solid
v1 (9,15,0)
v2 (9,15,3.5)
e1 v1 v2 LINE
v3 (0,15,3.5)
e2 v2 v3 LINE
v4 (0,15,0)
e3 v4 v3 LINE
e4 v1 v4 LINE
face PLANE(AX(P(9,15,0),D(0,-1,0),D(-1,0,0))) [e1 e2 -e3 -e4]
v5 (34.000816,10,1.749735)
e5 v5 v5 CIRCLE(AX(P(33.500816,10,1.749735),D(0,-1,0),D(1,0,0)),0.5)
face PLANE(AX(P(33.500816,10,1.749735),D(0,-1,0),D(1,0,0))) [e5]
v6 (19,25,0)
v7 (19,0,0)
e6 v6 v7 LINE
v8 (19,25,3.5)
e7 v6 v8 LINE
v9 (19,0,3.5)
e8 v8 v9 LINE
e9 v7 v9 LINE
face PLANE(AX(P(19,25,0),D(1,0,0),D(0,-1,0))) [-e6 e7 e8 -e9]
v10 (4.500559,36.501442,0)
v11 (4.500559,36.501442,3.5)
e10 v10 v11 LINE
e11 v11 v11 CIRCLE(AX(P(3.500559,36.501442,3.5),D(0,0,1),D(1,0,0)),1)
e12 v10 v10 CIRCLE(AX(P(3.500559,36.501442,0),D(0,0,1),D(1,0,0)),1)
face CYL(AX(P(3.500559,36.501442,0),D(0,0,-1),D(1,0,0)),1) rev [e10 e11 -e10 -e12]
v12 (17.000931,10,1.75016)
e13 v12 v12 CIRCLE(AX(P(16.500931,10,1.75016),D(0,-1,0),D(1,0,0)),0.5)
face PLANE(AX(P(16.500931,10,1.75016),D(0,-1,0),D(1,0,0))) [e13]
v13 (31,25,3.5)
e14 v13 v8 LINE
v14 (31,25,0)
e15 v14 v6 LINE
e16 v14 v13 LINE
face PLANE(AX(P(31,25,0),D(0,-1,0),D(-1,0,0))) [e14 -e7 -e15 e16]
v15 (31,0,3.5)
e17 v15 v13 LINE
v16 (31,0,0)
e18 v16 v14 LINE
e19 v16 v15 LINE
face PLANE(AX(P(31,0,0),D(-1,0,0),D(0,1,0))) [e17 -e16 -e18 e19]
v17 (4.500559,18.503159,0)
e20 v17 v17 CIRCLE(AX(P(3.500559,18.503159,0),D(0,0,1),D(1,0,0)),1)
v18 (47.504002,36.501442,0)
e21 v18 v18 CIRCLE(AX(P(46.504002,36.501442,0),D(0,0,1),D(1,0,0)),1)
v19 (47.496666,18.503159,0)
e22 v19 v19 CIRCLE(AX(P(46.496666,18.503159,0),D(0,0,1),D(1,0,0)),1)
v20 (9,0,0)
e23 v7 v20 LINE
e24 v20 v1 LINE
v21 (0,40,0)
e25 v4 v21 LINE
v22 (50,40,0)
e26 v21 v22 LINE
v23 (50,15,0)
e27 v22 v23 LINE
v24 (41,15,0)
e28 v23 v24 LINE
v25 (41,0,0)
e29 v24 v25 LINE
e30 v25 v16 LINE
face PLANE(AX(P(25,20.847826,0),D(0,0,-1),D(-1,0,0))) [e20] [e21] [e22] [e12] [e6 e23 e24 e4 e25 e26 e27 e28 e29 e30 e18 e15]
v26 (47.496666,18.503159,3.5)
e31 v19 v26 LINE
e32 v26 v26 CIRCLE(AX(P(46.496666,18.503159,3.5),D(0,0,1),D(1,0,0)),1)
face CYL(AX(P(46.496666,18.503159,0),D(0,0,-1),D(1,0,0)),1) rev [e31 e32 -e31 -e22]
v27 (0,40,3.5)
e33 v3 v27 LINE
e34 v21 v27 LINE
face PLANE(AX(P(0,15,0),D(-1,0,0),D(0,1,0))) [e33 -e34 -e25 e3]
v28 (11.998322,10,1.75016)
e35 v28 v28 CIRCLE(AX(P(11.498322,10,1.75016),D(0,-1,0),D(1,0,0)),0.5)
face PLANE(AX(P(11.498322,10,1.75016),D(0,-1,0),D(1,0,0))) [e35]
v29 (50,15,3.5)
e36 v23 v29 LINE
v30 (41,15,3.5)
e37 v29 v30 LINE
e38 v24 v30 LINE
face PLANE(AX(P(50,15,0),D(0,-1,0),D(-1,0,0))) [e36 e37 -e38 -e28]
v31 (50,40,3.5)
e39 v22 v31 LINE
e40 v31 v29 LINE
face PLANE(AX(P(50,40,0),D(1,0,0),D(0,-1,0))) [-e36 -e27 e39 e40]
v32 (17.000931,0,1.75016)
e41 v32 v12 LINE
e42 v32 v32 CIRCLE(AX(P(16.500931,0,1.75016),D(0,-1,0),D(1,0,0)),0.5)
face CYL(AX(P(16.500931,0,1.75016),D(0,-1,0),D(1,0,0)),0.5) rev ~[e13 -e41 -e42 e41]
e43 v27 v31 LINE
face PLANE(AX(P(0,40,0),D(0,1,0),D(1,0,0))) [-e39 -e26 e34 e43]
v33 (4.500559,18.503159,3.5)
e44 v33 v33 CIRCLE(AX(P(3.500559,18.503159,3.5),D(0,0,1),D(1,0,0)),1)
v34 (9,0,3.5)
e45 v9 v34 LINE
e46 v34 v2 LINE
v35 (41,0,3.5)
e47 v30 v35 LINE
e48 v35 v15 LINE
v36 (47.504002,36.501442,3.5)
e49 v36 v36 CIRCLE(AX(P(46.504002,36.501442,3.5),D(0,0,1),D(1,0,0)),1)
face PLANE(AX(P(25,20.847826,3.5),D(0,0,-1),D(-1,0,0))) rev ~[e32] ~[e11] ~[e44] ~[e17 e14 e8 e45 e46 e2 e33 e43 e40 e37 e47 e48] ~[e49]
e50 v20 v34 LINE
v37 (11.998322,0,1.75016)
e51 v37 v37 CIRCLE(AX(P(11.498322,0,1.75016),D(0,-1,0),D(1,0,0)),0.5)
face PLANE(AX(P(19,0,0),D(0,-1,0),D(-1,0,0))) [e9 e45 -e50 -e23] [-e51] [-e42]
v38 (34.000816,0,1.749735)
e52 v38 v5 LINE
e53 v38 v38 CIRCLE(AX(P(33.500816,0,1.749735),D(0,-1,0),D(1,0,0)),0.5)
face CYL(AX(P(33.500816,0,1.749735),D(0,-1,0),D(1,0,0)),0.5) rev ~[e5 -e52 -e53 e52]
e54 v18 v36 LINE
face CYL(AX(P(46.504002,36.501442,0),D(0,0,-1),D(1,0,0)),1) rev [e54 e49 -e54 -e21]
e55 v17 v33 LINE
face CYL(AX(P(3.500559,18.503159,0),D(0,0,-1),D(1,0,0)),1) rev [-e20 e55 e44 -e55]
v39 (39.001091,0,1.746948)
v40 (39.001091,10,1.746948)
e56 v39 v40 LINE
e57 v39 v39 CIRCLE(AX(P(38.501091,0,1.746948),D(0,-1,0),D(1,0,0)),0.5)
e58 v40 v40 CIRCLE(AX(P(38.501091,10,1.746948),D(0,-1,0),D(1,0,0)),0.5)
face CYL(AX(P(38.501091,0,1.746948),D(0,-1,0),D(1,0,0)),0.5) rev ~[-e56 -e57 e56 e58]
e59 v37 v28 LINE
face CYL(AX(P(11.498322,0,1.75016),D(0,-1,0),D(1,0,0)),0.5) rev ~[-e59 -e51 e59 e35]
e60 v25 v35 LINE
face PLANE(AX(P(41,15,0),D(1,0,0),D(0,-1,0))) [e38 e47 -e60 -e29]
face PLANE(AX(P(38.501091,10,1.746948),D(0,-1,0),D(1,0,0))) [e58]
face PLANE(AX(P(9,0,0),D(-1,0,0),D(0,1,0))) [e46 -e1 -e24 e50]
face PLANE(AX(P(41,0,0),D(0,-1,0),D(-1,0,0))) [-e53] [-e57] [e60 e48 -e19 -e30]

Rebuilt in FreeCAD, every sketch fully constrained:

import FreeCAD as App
import Part
import Sketcher
from FreeCAD import Vector


def add_polygon(sketch, points):
    """Adds a closed chain of lines whose ends are joined by coincident constraints."""
    first, n = sketch.GeometryCount, len(points)
    for a, b in zip(points, points[1:] + points[:1]):
        sketch.addGeometry(Part.LineSegment(App.Vector(*a, 0), App.Vector(*b, 0)), False)
    for i in range(n):
        sketch.addConstraint(Sketcher.Constraint("Coincident", first + i, 2, first + (i + 1) % n, 1))

doc = App.newDocument("Part")
params = doc.addObject("Spreadsheet::Sheet", "Params")
for row, (alias, value) in enumerate([
    ("sketch1_diameter", "2 mm"),
    ("sketch1_width", "10 mm"),
    ("sketch1_width2", "12 mm"),
    ("sketch1_width3", "9 mm"),
    ("sketch1_height", "15 mm"),
    ("pad1_length", "3.5 mm"),
    ("sketch2_diameter", "1 mm"),
    ("pocket1_length", "10 mm"),
], start=1):
    params.set(f"A{row}", alias)
    params.set(f"B{row}", "=" + value)
    params.setAlias(f"B{row}", alias)

body = doc.addObject("PartDesign::Body", "Body")

sketch1 = body.newObject("Sketcher::SketchObject", "Sketch")
sketch1.AttachmentSupport = (doc.getObject("XY_Plane"), [""])
sketch1.MapMode = "FlatFace"
add_polygon(sketch1, [(9, 15), (9, 0), (19, 0), (19, 25), (31, 25), (31, 0), (41, 0), (41, 15), (50, 15), (50, 40), (0, 40), (0, 15)])
sketch1.addGeometry(Part.Circle(Vector(46.5, 18.5, 0), Vector(0, 0, 1), 1), False)
sketch1.addGeometry(Part.Circle(Vector(3.5, 18.5, 0), Vector(0, 0, 1), 1), False)
sketch1.addGeometry(Part.Circle(Vector(46.5, 36.5, 0), Vector(0, 0, 1), 1), False)
sketch1.addGeometry(Part.Circle(Vector(3.5, 36.5, 0), Vector(0, 0, 1), 1), False)
sketch1.addConstraint(Sketcher.Constraint("Vertical", 0))
sketch1.addConstraint(Sketcher.Constraint("Horizontal", 1))
sketch1.addConstraint(Sketcher.Constraint("Vertical", 2))
sketch1.addConstraint(Sketcher.Constraint("Horizontal", 3))
sketch1.addConstraint(Sketcher.Constraint("Vertical", 4))
sketch1.addConstraint(Sketcher.Constraint("Horizontal", 5))
sketch1.addConstraint(Sketcher.Constraint("Vertical", 6))
sketch1.addConstraint(Sketcher.Constraint("Horizontal", 7))
sketch1.addConstraint(Sketcher.Constraint("Vertical", 8))
sketch1.addConstraint(Sketcher.Constraint("Horizontal", 9))
sketch1.addConstraint(Sketcher.Constraint("Vertical", 10))
sketch1.addConstraint(Sketcher.Constraint("Horizontal", 11))
sketch1.addConstraint(Sketcher.Constraint("Equal", 12, 13))
sketch1.addConstraint(Sketcher.Constraint("Equal", 13, 14))
sketch1.addConstraint(Sketcher.Constraint("Equal", 14, 15))
sketch1.addConstraint(Sketcher.Constraint("PointOnObject", 0, 2, -1))
sketch1.addConstraint(Sketcher.Constraint("PointOnObject", 4, 2, -1))
sketch1.addConstraint(Sketcher.Constraint("PointOnObject", 9, 2, -2))
sketch1.addConstraint(Sketcher.Constraint("Horizontal", 12, 3, 13, 3))
sketch1.addConstraint(Sketcher.Constraint("Horizontal", 14, 3, 15, 3))
sketch1.addConstraint(Sketcher.Constraint("Horizontal", 7, 2, 10, 2))
sketch1.addConstraint(Sketcher.Constraint("Vertical", 13, 3, 15, 3))
sketch1.addConstraint(Sketcher.Constraint("Equal", 1, 5))
sketch1.addConstraint(Sketcher.Constraint("Equal", 7, 11))
sketch1.addConstraint(Sketcher.Constraint("Equal", 4, 8))
sketch1.addConstraint(Sketcher.Constraint("Diameter", 12, 2.0))
sketch1.addConstraint(Sketcher.Constraint("DistanceX", 1, 1, 1, 2, 10.0))
sketch1.addConstraint(Sketcher.Constraint("DistanceX", 3, 1, 3, 2, 12.0))
sketch1.addConstraint(Sketcher.Constraint("DistanceX", 7, 1, 7, 2, 9.0))
sketch1.addConstraint(Sketcher.Constraint("DistanceY", 0, 2, 0, 1, 15.0))
sketch1.addConstraint(Sketcher.Constraint("DistanceY", 2, 1, 2, 2, 25.0))
sketch1.addConstraint(Sketcher.Constraint("DistanceX", 1, 2, 14, 3, 27.504002))
sketch1.addConstraint(Sketcher.Constraint("DistanceY", -1, 1, 12, 3, 18.503159))
sketch1.addConstraint(Sketcher.Constraint("DistanceX", -1, 1, 13, 3, 3.500559))
sketch1.addConstraint(Sketcher.Constraint("DistanceY", -1, 1, 14, 3, 36.501442))
sketch1.addConstraint(Sketcher.Constraint("DistanceX", -1, 1, 12, 3, 46.496666))
sketch1.setExpression("Constraints[37]", "Params.sketch1_diameter")
sketch1.setExpression("Constraints[38]", "Params.sketch1_width")
sketch1.setExpression("Constraints[39]", "Params.sketch1_width2")
sketch1.setExpression("Constraints[40]", "Params.sketch1_width3")
sketch1.setExpression("Constraints[41]", "Params.sketch1_height")
pad1 = body.newObject("PartDesign::Pad", "Pad")
pad1.Profile = sketch1
pad1.setExpression("Length", "Params.pad1_length")

sketch2 = body.newObject("Sketcher::SketchObject", "Sketch001")
sketch2.AttachmentSupport = (doc.getObject("XZ_Plane"), [""])
sketch2.MapMode = "FlatFace"
sketch2.addGeometry(Part.Circle(Vector(38.5, 1.7, 0), Vector(0, 0, 1), 0.5), False)
sketch2.addGeometry(Part.Circle(Vector(33.5, 1.7, 0), Vector(0, 0, 1), 0.5), False)
sketch2.addGeometry(Part.Circle(Vector(16.5, 1.8, 0), Vector(0, 0, 1), 0.5), False)
sketch2.addGeometry(Part.Circle(Vector(11.5, 1.8, 0), Vector(0, 0, 1), 0.5), False)
sketch2.addConstraint(Sketcher.Constraint("Equal", 0, 1))
sketch2.addConstraint(Sketcher.Constraint("Equal", 1, 2))
sketch2.addConstraint(Sketcher.Constraint("Equal", 2, 3))
sketch2.addConstraint(Sketcher.Constraint("Horizontal", 2, 3, 3, 3))
sketch2.addConstraint(Sketcher.Constraint("Diameter", 0, 1.0))
sketch2.addConstraint(Sketcher.Constraint("DistanceX", -1, 1, 0, 3, 38.501091))
sketch2.addConstraint(Sketcher.Constraint("DistanceX", -1, 1, 2, 3, 16.500931))
sketch2.addConstraint(Sketcher.Constraint("DistanceY", -1, 1, 2, 3, 1.75016))
sketch2.addConstraint(Sketcher.Constraint("DistanceY", 0, 3, 2, 3, 0.003212))
sketch2.addConstraint(Sketcher.Constraint("DistanceX", 3, 3, 2, 3, 5.002609))
sketch2.addConstraint(Sketcher.Constraint("DistanceX", -1, 1, 1, 3, 33.500816))
sketch2.addConstraint(Sketcher.Constraint("DistanceY", -1, 1, 1, 3, 1.749735))
sketch2.setExpression("Constraints[4]", "Params.sketch2_diameter")
pocket1 = body.newObject("PartDesign::Pocket", "Pocket")
pocket1.Profile = sketch2
pocket1.setExpression("Length", "Params.pocket1_length")

doc.recompute()
